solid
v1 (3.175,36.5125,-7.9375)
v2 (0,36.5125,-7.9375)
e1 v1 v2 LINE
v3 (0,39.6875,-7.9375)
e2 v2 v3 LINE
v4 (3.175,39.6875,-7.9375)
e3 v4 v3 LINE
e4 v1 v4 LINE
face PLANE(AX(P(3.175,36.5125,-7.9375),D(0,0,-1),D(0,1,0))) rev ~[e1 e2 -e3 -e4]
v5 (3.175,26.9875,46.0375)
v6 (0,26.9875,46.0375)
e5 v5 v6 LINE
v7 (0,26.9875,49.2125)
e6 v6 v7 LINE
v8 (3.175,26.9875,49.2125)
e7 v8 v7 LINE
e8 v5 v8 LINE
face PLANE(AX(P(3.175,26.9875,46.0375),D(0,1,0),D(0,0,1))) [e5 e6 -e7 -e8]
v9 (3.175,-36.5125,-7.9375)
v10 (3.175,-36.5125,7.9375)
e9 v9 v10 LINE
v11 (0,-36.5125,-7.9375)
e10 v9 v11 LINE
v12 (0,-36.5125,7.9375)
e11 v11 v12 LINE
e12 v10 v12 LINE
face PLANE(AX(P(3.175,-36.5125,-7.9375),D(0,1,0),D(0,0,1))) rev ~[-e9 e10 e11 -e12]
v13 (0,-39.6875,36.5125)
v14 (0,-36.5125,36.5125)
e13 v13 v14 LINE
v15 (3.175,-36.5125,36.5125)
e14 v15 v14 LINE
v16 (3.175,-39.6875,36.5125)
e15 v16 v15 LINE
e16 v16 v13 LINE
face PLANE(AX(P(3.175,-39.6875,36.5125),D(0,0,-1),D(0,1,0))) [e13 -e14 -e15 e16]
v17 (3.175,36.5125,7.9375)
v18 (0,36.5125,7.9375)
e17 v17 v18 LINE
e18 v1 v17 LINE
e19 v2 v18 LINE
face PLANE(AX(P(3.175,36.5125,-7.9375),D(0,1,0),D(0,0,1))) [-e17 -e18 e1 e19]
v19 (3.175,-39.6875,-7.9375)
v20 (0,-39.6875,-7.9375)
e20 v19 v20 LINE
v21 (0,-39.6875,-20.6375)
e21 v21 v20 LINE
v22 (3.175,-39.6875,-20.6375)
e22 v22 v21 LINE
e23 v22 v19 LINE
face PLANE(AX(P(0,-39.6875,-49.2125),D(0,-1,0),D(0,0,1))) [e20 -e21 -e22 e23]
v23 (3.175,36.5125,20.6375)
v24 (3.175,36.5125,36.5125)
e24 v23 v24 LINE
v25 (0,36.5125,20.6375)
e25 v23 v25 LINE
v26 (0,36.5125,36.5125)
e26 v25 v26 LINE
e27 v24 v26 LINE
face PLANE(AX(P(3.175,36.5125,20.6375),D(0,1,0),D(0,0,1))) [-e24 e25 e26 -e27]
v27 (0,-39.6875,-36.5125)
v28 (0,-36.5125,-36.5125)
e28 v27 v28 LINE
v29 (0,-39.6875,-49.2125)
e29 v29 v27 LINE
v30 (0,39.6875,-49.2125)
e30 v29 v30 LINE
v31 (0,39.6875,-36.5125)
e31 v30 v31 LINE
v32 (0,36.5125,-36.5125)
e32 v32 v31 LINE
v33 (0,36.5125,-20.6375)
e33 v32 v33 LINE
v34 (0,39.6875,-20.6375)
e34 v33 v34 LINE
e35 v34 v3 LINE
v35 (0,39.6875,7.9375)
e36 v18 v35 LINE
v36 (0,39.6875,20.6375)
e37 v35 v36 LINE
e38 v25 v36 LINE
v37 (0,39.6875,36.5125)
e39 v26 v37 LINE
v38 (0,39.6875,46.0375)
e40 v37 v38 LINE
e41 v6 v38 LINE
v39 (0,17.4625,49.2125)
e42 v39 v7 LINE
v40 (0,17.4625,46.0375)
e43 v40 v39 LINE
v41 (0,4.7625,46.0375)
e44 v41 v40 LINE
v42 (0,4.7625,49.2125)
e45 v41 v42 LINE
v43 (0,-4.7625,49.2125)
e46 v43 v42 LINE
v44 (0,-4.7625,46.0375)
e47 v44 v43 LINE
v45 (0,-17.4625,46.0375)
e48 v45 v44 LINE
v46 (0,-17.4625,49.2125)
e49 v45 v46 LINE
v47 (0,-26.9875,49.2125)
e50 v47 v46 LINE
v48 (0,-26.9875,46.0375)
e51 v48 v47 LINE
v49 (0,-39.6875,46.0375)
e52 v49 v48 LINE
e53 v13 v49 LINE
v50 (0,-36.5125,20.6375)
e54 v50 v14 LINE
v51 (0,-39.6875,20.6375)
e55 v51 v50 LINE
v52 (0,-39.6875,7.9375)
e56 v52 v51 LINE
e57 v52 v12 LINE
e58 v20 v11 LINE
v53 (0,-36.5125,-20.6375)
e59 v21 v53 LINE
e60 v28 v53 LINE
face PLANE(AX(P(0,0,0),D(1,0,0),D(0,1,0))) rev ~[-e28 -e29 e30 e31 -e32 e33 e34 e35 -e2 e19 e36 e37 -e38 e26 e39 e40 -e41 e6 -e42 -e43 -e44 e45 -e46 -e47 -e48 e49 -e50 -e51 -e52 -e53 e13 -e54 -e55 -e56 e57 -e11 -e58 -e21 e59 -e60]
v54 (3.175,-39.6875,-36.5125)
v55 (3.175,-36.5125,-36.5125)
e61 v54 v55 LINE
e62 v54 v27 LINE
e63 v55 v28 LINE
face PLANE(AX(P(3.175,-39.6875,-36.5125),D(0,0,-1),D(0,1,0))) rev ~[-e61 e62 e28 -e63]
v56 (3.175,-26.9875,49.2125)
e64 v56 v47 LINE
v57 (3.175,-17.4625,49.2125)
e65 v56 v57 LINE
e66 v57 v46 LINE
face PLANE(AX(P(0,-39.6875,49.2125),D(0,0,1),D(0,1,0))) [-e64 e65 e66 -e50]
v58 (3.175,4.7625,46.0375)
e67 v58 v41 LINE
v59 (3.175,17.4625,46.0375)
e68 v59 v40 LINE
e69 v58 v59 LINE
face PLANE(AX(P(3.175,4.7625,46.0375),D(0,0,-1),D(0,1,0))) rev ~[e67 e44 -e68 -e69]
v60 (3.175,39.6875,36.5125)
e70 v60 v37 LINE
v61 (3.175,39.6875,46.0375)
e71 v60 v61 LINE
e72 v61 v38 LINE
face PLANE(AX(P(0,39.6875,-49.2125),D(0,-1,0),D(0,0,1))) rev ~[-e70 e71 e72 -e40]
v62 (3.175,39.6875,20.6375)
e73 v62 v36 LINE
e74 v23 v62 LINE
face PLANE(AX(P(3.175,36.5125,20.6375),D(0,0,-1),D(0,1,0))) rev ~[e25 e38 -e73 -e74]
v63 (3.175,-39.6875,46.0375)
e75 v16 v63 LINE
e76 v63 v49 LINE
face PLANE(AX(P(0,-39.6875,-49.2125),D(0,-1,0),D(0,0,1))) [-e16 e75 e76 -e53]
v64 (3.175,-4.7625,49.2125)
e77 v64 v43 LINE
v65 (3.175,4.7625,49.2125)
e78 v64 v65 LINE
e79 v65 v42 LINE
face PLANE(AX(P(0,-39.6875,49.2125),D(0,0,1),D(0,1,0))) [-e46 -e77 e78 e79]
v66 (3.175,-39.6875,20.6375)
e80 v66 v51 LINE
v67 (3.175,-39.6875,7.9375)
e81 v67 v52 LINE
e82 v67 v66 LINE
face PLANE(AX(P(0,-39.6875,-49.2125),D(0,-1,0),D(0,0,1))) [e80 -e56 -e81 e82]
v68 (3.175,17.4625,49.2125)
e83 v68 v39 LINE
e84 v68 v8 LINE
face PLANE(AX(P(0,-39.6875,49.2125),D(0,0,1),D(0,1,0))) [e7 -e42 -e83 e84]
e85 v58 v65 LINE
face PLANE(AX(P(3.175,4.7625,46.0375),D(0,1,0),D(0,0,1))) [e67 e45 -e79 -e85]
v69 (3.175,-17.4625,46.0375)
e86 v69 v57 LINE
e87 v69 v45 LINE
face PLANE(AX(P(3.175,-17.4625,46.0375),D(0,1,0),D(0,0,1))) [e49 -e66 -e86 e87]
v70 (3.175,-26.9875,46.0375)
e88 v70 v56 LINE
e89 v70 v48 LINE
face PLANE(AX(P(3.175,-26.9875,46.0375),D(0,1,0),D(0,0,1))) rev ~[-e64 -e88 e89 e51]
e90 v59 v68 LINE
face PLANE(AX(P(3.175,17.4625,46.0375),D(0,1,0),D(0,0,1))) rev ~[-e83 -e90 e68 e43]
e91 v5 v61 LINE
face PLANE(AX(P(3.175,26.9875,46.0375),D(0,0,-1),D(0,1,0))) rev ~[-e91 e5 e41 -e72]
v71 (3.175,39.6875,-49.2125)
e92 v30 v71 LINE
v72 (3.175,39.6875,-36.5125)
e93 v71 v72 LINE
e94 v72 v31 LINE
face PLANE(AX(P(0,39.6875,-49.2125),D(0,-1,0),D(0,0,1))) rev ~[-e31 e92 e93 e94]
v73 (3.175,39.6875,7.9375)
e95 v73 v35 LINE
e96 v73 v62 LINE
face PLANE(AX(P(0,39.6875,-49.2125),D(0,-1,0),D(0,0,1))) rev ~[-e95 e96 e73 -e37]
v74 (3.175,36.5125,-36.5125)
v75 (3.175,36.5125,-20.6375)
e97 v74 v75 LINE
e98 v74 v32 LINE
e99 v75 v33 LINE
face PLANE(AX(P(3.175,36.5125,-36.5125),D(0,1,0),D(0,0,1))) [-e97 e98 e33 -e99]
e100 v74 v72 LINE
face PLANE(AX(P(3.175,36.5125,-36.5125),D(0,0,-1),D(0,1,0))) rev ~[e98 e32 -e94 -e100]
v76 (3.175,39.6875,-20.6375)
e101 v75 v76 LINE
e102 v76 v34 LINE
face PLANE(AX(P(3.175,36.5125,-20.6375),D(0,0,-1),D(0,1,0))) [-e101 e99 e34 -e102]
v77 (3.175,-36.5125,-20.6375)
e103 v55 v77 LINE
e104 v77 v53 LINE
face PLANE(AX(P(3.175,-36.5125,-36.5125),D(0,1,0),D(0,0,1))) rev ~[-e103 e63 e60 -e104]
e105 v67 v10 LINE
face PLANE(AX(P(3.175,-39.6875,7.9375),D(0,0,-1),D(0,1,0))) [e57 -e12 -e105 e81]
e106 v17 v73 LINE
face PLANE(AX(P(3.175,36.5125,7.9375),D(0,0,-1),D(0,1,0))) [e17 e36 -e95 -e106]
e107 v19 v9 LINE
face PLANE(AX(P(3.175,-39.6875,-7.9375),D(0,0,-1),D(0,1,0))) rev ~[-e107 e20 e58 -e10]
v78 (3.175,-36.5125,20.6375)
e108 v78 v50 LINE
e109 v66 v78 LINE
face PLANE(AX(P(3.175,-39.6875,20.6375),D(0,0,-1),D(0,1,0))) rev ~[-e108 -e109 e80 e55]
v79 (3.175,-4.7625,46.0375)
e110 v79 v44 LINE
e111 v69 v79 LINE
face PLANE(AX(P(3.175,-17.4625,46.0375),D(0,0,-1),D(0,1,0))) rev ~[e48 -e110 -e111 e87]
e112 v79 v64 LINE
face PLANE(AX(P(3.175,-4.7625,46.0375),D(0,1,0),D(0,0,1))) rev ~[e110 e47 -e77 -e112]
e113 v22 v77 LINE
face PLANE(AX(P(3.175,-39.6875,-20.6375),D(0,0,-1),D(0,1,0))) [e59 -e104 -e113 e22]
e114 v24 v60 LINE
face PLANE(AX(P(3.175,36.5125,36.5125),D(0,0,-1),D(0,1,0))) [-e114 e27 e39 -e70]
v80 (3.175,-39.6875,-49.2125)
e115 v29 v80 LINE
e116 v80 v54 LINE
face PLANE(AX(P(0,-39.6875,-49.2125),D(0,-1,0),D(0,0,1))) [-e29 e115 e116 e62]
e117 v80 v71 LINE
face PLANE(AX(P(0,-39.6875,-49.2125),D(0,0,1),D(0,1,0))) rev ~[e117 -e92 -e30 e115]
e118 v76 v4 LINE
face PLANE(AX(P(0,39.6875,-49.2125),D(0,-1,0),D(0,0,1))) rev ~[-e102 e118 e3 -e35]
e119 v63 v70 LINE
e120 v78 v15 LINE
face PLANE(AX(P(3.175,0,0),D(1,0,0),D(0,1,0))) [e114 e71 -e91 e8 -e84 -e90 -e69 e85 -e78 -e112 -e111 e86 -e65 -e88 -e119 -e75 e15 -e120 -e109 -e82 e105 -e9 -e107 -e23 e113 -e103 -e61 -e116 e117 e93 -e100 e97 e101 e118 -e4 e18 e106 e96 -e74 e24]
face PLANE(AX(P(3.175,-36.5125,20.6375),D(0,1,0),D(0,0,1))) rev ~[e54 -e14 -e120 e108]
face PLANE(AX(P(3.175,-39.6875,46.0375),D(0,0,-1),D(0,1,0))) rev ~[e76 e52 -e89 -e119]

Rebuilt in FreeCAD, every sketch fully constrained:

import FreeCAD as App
import Part
import Sketcher

V = App.Vector
Q = App.Units.Quantity

doc = App.newDocument("Part")
body = doc.addObject("PartDesign::Body", "Body")

sketch1 = doc.addObject("Sketcher::SketchObject", "Sketch")
body.addObject(sketch1)
sketch1.AttachmentSupport = (doc.YZ_Plane, [""])
sketch1.MapMode = "FlatFace"
sketch1.addGeometry(Part.LineSegment(V(-40, 49, 0), V(-40, -49, 0)), False)
sketch1.addGeometry(Part.LineSegment(V(-40, -49, 0), V(40, -49, 0)), False)
sketch1.addGeometry(Part.LineSegment(V(40, -49, 0), V(40, 49, 0)), False)
sketch1.addGeometry(Part.LineSegment(V(40, 49, 0), V(-40, 49, 0)), False)
sketch1.addConstraint(Sketcher.Constraint("Coincident", 0, 2, 1, 1))
sketch1.addConstraint(Sketcher.Constraint("Coincident", 1, 2, 2, 1))
sketch1.addConstraint(Sketcher.Constraint("Coincident", 2, 2, 3, 1))
sketch1.addConstraint(Sketcher.Constraint("Coincident", 3, 2, 0, 1))
sketch1.addConstraint(Sketcher.Constraint("Vertical", 0))
sketch1.addConstraint(Sketcher.Constraint("Horizontal", 1))
sketch1.addConstraint(Sketcher.Constraint("Vertical", 2))
sketch1.addConstraint(Sketcher.Constraint("Horizontal", 3))
sketch1.addConstraint(Sketcher.Constraint("Symmetric", 0, 2, 2, 2, -1, 1))
sketch1.addConstraint(Sketcher.Constraint("DistanceX", 1, 1, 1, 2, Q("3.125 in")))
sketch1.addConstraint(Sketcher.Constraint("DistanceY", 0, 2, 0, 1, Q("3.875 in")))
pad1 = doc.addObject("PartDesign::Pad", "Pad")
body.addObject(pad1)
pad1.Profile = sketch1
pad1.Length = Q("0.125 in")

sketch2 = doc.addObject("Sketcher::SketchObject", "Sketch001")
body.addObject(sketch2)
sketch2.AttachmentSupport = (doc.YZ_Plane, [""])
sketch2.MapMode = "FlatFace"
sketch2.AttachmentOffset = App.Placement(V(0, 0, 0.125 * 25.4), App.Rotation())
sketch2.addGeometry(Part.LineSegment(V(-39.7, 36.5, 0), V(-39.7, 20.6, 0)), False)
sketch2.addGeometry(Part.LineSegment(V(-39.7, 20.6, 0), V(-36.5, 20.6, 0)), False)
sketch2.addGeometry(Part.LineSegment(V(-36.5, 20.6, 0), V(-36.5, 36.5, 0)), False)
sketch2.addGeometry(Part.LineSegment(V(-36.5, 36.5, 0), V(-39.7, 36.5, 0)), False)
sketch2.addGeometry(Part.LineSegment(V(-39.7, 7.9, 0), V(-39.7, -7.9, 0)), False)
sketch2.addGeometry(Part.LineSegment(V(-39.7, -7.9, 0), V(-36.5, -7.9, 0)), False)
sketch2.addGeometry(Part.LineSegment(V(-36.5, -7.9, 0), V(-36.5, 7.9, 0)), False)
sketch2.addGeometry(Part.LineSegment(V(-36.5, 7.9, 0), V(-39.7, 7.9, 0)), False)
sketch2.addGeometry(Part.LineSegment(V(-39.7, -20.6, 0), V(-39.7, -36.5, 0)), False)
sketch2.addGeometry(Part.LineSegment(V(-39.7, -36.5, 0), V(-36.5, -36.5, 0)), False)
sketch2.addGeometry(Part.LineSegment(V(-36.5, -36.5, 0), V(-36.5, -20.6, 0)), False)
sketch2.addGeometry(Part.LineSegment(V(-36.5, -20.6, 0), V(-39.7, -20.6, 0)), False)
sketch2.addGeometry(Part.LineSegment(V(36.5, 36.5, 0), V(36.5, 20.6, 0)), False)
sketch2.addGeometry(Part.LineSegment(V(36.5, 20.6, 0), V(39.7, 20.6, 0)), False)
sketch2.addGeometry(Part.LineSegment(V(39.7, 20.6, 0), V(39.7, 36.5, 0)), False)
sketch2.addGeometry(Part.LineSegment(V(39.7, 36.5, 0), V(36.5, 36.5, 0)), False)
sketch2.addGeometry(Part.LineSegment(V(36.5, -20.6, 0), V(36.5, -36.5, 0)), False)
sketch2.addGeometry(Part.LineSegment(V(36.5, -36.5, 0), V(39.7, -36.5, 0)), False)
sketch2.addGeometry(Part.LineSegment(V(39.7, -36.5, 0), V(39.7, -20.6, 0)), False)
sketch2.addGeometry(Part.LineSegment(V(39.7, -20.6, 0), V(36.5, -20.6, 0)), False)
sketch2.addGeometry(Part.LineSegment(V(36.5, 7.9, 0), V(36.5, -7.9, 0)), False)
sketch2.addGeometry(Part.LineSegment(V(36.5, -7.9, 0), V(39.7, -7.9, 0)), False)
sketch2.addGeometry(Part.LineSegment(V(39.7, -7.9, 0), V(39.7, 7.9, 0)), False)
sketch2.addGeometry(Part.LineSegment(V(39.7, 7.9, 0), V(36.5, 7.9, 0)), False)
sketch2.addConstraint(Sketcher.Constraint("Coincident", 0, 2, 1, 1))
sketch2.addConstraint(Sketcher.Constraint("Coincident", 1, 2, 2, 1))
sketch2.addConstraint(Sketcher.Constraint("Coincident", 2, 2, 3, 1))
sketch2.addConstraint(Sketcher.Constraint("Coincident", 3, 2, 0, 1))
sketch2.addConstraint(Sketcher.Constraint("Coincident", 4, 2, 5, 1))
sketch2.addConstraint(Sketcher.Constraint("Coincident", 5, 2, 6, 1))
sketch2.addConstraint(Sketcher.Constraint("Coincident", 6, 2, 7, 1))
sketch2.addConstraint(Sketcher.Constraint("Coincident", 7, 2, 4, 1))
sketch2.addConstraint(Sketcher.Constraint("Coincident", 8, 2, 9, 1))
sketch2.addConstraint(Sketcher.Constraint("Coincident", 9, 2, 10, 1))
sketch2.addConstraint(Sketcher.Constraint("Coincident", 10, 2, 11, 1))
sketch2.addConstraint(Sketcher.Constraint("Coincident", 11, 2, 8, 1))
sketch2.addConstraint(Sketcher.Constraint("Coincident", 12, 2, 13, 1))
sketch2.addConstraint(Sketcher.Constraint("Coincident", 13, 2, 14, 1))
sketch2.addConstraint(Sketcher.Constraint("Coincident", 14, 2, 15, 1))
sketch2.addConstraint(Sketcher.Constraint("Coincident", 15, 2, 12, 1))
sketch2.addConstraint(Sketcher.Constraint("Coincident", 16, 2, 17, 1))
sketch2.addConstraint(Sketcher.Constraint("Coincident", 17, 2, 18, 1))
sketch2.addConstraint(Sketcher.Constraint("Coincident", 18, 2, 19, 1))
sketch2.addConstraint(Sketcher.Constraint("Coincident", 19, 2, 16, 1))
sketch2.addConstraint(Sketcher.Constraint("Coincident", 20, 2, 21, 1))
sketch2.addConstraint(Sketcher.Constraint("Coincident", 21, 2, 22, 1))
sketch2.addConstraint(Sketcher.Constraint("Coincident", 22, 2, 23, 1))
sketch2.addConstraint(Sketcher.Constraint("Coincident", 23, 2, 20, 1))
sketch2.addConstraint(Sketcher.Constraint("Vertical", 0))
sketch2.addConstraint(Sketcher.Constraint("Horizontal", 1))
sketch2.addConstraint(Sketcher.Constraint("Vertical", 2))
sketch2.addConstraint(Sketcher.Constraint("Horizontal", 3))
sketch2.addConstraint(Sketcher.Constraint("Vertical", 4))
sketch2.addConstraint(Sketcher.Constraint("Horizontal", 5))
sketch2.addConstraint(Sketcher.Constraint("Vertical", 6))
sketch2.addConstraint(Sketcher.Constraint("Horizontal", 7))
sketch2.addConstraint(Sketcher.Constraint("Vertical", 8))
sketch2.addConstraint(Sketcher.Constraint("Horizontal", 9))
sketch2.addConstraint(Sketcher.Constraint("Vertical", 10))
sketch2.addConstraint(Sketcher.Constraint("Horizontal", 11))
sketch2.addConstraint(Sketcher.Constraint("Vertical", 12))
sketch2.addConstraint(Sketcher.Constraint("Horizontal", 13))
sketch2.addConstraint(Sketcher.Constraint("Vertical", 14))
sketch2.addConstraint(Sketcher.Constraint("Horizontal", 15))
sketch2.addConstraint(Sketcher.Constraint("Vertical", 16))
sketch2.addConstraint(Sketcher.Constraint("Horizontal", 17))
sketch2.addConstraint(Sketcher.Constraint("Vertical", 18))
sketch2.addConstraint(Sketcher.Constraint("Horizontal", 19))
sketch2.addConstraint(Sketcher.Constraint("Vertical", 20))
sketch2.addConstraint(Sketcher.Constraint("Horizontal", 21))
sketch2.addConstraint(Sketcher.Constraint("Vertical", 22))
sketch2.addConstraint(Sketcher.Constraint("Horizontal", 23))
sketch2.addConstraint(Sketcher.Constraint("Symmetric", 10, 2, 12, 2, -1, 1))
sketch2.addConstraint(Sketcher.Constraint("Symmetric", 8, 2, 14, 2, -1, 1))
sketch2.addConstraint(Sketcher.Constraint("Symmetric", 2, 2, 16, 2, -1, 1))
sketch2.addConstraint(Sketcher.Constraint("Symmetric", 0, 2, 18, 2, -1, 1))
sketch2.addConstraint(Sketcher.Constraint("Symmetric", 6, 2, 20, 2, -1, 1))
sketch2.addConstraint(Sketcher.Constraint("Symmetric", 4, 2, 22, 2, -1, 1))
sketch2.addConstraint(Sketcher.Constraint("Symmetric", 1, 2, 12, 2, -2))
sketch2.addConstraint(Sketcher.Constraint("Symmetric", 3, 2, 14, 2, -2))
sketch2.addConstraint(Sketcher.Constraint("Horizontal", 5, 2, 20, 2))
sketch2.addConstraint(Sketcher.Constraint("Vertical", 3, 2, 4, 2))
sketch2.addConstraint(Sketcher.Constraint("Vertical", 2, 2, 5, 2))
sketch2.addConstraint(Sketcher.Constraint("Equal", 2, 4))
sketch2.addConstraint(Sketcher.Constraint("DistanceX", 0, 2, 12, 2, Q("3 in")))
sketch2.addConstraint(Sketcher.Constraint("DistanceY", 6, 2, 1, 2, Q("0.5 in")))
sketch2.addConstraint(Sketcher.Constraint("DistanceX", 1, 1, 1, 2, Q("0.125 in")))
sketch2.addConstraint(Sketcher.Constraint("DistanceY", 0, 2, 0, 1, Q("0.625 in")))
pocket1 = doc.addObject("PartDesign::Pocket", "Pocket")
body.addObject(pocket1)
pocket1.Profile = sketch2
pocket1.Type = "ThroughAll"

sketch3 = doc.addObject("Sketcher::SketchObject", "Sketch002")
body.addObject(sketch3)
sketch3.AttachmentSupport = (doc.YZ_Plane, [""])
sketch3.MapMode = "FlatFace"
sketch3.AttachmentOffset = App.Placement(V(0, 0, 0.125 * 25.4), App.Rotation())
sketch3.addGeometry(Part.LineSegment(V(-39.7, 49.2, 0), V(-39.7, 46, 0)), False)
sketch3.addGeometry(Part.LineSegment(V(-39.7, 46, 0), V(-27, 46, 0)), False)
sketch3.addGeometry(Part.LineSegment(V(-27, 46, 0), V(-27, 49.2, 0)), False)
sketch3.addGeometry(Part.LineSegment(V(-27, 49.2, 0), V(-39.7, 49.2, 0)), False)
sketch3.addGeometry(Part.LineSegment(V(-17.5, 49.2, 0), V(-17.5, 46, 0)), False)
sketch3.addGeometry(Part.LineSegment(V(-17.5, 46, 0), V(-4.8, 46, 0)), False)
sketch3.addGeometry(Part.LineSegment(V(-4.8, 46, 0), V(-4.8, 49.2, 0)), False)
sketch3.addGeometry(Part.LineSegment(V(-4.8, 49.2, 0), V(-17.5, 49.2, 0)), False)
sketch3.addGeometry(Part.LineSegment(V(4.8, 49.2, 0), V(4.8, 46, 0)), False)
sketch3.addGeometry(Part.LineSegment(V(4.8, 46, 0), V(17.5, 46, 0)), False)
sketch3.addGeometry(Part.LineSegment(V(17.5, 46, 0), V(17.5, 49.2, 0)), False)
sketch3.addGeometry(Part.LineSegment(V(17.5, 49.2, 0), V(4.8, 49.2, 0)), False)
sketch3.addGeometry(Part.LineSegment(V(27, 49.2, 0), V(27, 46, 0)), False)
sketch3.addGeometry(Part.LineSegment(V(27, 46, 0), V(39.7, 46, 0)), False)
sketch3.addGeometry(Part.LineSegment(V(39.7, 46, 0), V(39.7, 49.2, 0)), False)
sketch3.addGeometry(Part.LineSegment(V(39.7, 49.2, 0), V(27, 49.2, 0)), False)
sketch3.addConstraint(Sketcher.Constraint("Coincident", 0, 2, 1, 1))
sketch3.addConstraint(Sketcher.Constraint("Coincident", 1, 2, 2, 1))
sketch3.addConstraint(Sketcher.Constraint("Coincident", 2, 2, 3, 1))
sketch3.addConstraint(Sketcher.Constraint("Coincident", 3, 2, 0, 1))
sketch3.addConstraint(Sketcher.Constraint("Coincident", 4, 2, 5, 1))
sketch3.addConstraint(Sketcher.Constraint("Coincident", 5, 2, 6, 1))
sketch3.addConstraint(Sketcher.Constraint("Coincident", 6, 2, 7, 1))
sketch3.addConstraint(Sketcher.Constraint("Coincident", 7, 2, 4, 1))
sketch3.addConstraint(Sketcher.Constraint("Coincident", 8, 2, 9, 1))
sketch3.addConstraint(Sketcher.Constraint("Coincident", 9, 2, 10, 1))
sketch3.addConstraint(Sketcher.Constraint("Coincident", 10, 2, 11, 1))
sketch3.addConstraint(Sketcher.Constraint("Coincident", 11, 2, 8, 1))
sketch3.addConstraint(Sketcher.Constraint("Coincident", 12, 2, 13, 1))
sketch3.addConstraint(Sketcher.Constraint("Coincident", 13, 2, 14, 1))
sketch3.addConstraint(Sketcher.Constraint("Coincident", 14, 2, 15, 1))
sketch3.addConstraint(Sketcher.Constraint("Coincident", 15, 2, 12, 1))
sketch3.addConstraint(Sketcher.Constraint("Vertical", 0))
sketch3.addConstraint(Sketcher.Constraint("Horizontal", 1))
sketch3.addConstraint(Sketcher.Constraint("Vertical", 2))
sketch3.addConstraint(Sketcher.Constraint("Horizontal", 3))
sketch3.addConstraint(Sketcher.Constraint("Vertical", 4))
sketch3.addConstraint(Sketcher.Constraint("Horizontal", 5))
sketch3.addConstraint(Sketcher.Constraint("Vertical", 6))
sketch3.addConstraint(Sketcher.Constraint("Horizontal", 7))
sketch3.addConstraint(Sketcher.Constraint("Vertical", 8))
sketch3.addConstraint(Sketcher.Constraint("Horizontal", 9))
sketch3.addConstraint(Sketcher.Constraint("Vertical", 10))
sketch3.addConstraint(Sketcher.Constraint("Horizontal", 11))
sketch3.addConstraint(Sketcher.Constraint("Vertical", 12))
sketch3.addConstraint(Sketcher.Constraint("Horizontal", 13))
sketch3.addConstraint(Sketcher.Constraint("Vertical", 14))
sketch3.addConstraint(Sketcher.Constraint("Horizontal", 15))
sketch3.addConstraint(Sketcher.Constraint("Symmetric", 5, 2, 8, 2, -2))
sketch3.addConstraint(Sketcher.Constraint("Symmetric", 7, 2, 10, 2, -2))
sketch3.addConstraint(Sketcher.Constraint("Symmetric", 1, 2, 12, 2, -2))
sketch3.addConstraint(Sketcher.Constraint("Symmetric", 3, 2, 14, 2, -2))
sketch3.addConstraint(Sketcher.Constraint("Horizontal", 1, 2, 4, 2))
sketch3.addConstraint(Sketcher.Constraint("Horizontal", 3, 2, 6, 2))
sketch3.addConstraint(Sketcher.Constraint("Equal", 3, 5))
sketch3.addConstraint(Sketcher.Constraint("DistanceX", 1, 1, 1, 2, Q("0.5 in")))
sketch3.addConstraint(Sketcher.Constraint("DistanceY", 0, 2, 0, 1, Q("0.125 in")))
sketch3.addConstraint(Sketcher.Constraint("DistanceX", 1, 2, 8, 2, Q("1.25 in")))
sketch3.addConstraint(Sketcher.Constraint("DistanceX", 0, 2, -1, 1, Q("1.5625 in")))
sketch3.addConstraint(Sketcher.Constraint("DistanceY", -1, 1, 0, 2, Q("1.8125 in")))
pocket2 = doc.addObject("PartDesign::Pocket", "Pocket001")
body.addObject(pocket2)
pocket2.Profile = sketch3
pocket2.Type = "ThroughAll"

doc.recompute()
